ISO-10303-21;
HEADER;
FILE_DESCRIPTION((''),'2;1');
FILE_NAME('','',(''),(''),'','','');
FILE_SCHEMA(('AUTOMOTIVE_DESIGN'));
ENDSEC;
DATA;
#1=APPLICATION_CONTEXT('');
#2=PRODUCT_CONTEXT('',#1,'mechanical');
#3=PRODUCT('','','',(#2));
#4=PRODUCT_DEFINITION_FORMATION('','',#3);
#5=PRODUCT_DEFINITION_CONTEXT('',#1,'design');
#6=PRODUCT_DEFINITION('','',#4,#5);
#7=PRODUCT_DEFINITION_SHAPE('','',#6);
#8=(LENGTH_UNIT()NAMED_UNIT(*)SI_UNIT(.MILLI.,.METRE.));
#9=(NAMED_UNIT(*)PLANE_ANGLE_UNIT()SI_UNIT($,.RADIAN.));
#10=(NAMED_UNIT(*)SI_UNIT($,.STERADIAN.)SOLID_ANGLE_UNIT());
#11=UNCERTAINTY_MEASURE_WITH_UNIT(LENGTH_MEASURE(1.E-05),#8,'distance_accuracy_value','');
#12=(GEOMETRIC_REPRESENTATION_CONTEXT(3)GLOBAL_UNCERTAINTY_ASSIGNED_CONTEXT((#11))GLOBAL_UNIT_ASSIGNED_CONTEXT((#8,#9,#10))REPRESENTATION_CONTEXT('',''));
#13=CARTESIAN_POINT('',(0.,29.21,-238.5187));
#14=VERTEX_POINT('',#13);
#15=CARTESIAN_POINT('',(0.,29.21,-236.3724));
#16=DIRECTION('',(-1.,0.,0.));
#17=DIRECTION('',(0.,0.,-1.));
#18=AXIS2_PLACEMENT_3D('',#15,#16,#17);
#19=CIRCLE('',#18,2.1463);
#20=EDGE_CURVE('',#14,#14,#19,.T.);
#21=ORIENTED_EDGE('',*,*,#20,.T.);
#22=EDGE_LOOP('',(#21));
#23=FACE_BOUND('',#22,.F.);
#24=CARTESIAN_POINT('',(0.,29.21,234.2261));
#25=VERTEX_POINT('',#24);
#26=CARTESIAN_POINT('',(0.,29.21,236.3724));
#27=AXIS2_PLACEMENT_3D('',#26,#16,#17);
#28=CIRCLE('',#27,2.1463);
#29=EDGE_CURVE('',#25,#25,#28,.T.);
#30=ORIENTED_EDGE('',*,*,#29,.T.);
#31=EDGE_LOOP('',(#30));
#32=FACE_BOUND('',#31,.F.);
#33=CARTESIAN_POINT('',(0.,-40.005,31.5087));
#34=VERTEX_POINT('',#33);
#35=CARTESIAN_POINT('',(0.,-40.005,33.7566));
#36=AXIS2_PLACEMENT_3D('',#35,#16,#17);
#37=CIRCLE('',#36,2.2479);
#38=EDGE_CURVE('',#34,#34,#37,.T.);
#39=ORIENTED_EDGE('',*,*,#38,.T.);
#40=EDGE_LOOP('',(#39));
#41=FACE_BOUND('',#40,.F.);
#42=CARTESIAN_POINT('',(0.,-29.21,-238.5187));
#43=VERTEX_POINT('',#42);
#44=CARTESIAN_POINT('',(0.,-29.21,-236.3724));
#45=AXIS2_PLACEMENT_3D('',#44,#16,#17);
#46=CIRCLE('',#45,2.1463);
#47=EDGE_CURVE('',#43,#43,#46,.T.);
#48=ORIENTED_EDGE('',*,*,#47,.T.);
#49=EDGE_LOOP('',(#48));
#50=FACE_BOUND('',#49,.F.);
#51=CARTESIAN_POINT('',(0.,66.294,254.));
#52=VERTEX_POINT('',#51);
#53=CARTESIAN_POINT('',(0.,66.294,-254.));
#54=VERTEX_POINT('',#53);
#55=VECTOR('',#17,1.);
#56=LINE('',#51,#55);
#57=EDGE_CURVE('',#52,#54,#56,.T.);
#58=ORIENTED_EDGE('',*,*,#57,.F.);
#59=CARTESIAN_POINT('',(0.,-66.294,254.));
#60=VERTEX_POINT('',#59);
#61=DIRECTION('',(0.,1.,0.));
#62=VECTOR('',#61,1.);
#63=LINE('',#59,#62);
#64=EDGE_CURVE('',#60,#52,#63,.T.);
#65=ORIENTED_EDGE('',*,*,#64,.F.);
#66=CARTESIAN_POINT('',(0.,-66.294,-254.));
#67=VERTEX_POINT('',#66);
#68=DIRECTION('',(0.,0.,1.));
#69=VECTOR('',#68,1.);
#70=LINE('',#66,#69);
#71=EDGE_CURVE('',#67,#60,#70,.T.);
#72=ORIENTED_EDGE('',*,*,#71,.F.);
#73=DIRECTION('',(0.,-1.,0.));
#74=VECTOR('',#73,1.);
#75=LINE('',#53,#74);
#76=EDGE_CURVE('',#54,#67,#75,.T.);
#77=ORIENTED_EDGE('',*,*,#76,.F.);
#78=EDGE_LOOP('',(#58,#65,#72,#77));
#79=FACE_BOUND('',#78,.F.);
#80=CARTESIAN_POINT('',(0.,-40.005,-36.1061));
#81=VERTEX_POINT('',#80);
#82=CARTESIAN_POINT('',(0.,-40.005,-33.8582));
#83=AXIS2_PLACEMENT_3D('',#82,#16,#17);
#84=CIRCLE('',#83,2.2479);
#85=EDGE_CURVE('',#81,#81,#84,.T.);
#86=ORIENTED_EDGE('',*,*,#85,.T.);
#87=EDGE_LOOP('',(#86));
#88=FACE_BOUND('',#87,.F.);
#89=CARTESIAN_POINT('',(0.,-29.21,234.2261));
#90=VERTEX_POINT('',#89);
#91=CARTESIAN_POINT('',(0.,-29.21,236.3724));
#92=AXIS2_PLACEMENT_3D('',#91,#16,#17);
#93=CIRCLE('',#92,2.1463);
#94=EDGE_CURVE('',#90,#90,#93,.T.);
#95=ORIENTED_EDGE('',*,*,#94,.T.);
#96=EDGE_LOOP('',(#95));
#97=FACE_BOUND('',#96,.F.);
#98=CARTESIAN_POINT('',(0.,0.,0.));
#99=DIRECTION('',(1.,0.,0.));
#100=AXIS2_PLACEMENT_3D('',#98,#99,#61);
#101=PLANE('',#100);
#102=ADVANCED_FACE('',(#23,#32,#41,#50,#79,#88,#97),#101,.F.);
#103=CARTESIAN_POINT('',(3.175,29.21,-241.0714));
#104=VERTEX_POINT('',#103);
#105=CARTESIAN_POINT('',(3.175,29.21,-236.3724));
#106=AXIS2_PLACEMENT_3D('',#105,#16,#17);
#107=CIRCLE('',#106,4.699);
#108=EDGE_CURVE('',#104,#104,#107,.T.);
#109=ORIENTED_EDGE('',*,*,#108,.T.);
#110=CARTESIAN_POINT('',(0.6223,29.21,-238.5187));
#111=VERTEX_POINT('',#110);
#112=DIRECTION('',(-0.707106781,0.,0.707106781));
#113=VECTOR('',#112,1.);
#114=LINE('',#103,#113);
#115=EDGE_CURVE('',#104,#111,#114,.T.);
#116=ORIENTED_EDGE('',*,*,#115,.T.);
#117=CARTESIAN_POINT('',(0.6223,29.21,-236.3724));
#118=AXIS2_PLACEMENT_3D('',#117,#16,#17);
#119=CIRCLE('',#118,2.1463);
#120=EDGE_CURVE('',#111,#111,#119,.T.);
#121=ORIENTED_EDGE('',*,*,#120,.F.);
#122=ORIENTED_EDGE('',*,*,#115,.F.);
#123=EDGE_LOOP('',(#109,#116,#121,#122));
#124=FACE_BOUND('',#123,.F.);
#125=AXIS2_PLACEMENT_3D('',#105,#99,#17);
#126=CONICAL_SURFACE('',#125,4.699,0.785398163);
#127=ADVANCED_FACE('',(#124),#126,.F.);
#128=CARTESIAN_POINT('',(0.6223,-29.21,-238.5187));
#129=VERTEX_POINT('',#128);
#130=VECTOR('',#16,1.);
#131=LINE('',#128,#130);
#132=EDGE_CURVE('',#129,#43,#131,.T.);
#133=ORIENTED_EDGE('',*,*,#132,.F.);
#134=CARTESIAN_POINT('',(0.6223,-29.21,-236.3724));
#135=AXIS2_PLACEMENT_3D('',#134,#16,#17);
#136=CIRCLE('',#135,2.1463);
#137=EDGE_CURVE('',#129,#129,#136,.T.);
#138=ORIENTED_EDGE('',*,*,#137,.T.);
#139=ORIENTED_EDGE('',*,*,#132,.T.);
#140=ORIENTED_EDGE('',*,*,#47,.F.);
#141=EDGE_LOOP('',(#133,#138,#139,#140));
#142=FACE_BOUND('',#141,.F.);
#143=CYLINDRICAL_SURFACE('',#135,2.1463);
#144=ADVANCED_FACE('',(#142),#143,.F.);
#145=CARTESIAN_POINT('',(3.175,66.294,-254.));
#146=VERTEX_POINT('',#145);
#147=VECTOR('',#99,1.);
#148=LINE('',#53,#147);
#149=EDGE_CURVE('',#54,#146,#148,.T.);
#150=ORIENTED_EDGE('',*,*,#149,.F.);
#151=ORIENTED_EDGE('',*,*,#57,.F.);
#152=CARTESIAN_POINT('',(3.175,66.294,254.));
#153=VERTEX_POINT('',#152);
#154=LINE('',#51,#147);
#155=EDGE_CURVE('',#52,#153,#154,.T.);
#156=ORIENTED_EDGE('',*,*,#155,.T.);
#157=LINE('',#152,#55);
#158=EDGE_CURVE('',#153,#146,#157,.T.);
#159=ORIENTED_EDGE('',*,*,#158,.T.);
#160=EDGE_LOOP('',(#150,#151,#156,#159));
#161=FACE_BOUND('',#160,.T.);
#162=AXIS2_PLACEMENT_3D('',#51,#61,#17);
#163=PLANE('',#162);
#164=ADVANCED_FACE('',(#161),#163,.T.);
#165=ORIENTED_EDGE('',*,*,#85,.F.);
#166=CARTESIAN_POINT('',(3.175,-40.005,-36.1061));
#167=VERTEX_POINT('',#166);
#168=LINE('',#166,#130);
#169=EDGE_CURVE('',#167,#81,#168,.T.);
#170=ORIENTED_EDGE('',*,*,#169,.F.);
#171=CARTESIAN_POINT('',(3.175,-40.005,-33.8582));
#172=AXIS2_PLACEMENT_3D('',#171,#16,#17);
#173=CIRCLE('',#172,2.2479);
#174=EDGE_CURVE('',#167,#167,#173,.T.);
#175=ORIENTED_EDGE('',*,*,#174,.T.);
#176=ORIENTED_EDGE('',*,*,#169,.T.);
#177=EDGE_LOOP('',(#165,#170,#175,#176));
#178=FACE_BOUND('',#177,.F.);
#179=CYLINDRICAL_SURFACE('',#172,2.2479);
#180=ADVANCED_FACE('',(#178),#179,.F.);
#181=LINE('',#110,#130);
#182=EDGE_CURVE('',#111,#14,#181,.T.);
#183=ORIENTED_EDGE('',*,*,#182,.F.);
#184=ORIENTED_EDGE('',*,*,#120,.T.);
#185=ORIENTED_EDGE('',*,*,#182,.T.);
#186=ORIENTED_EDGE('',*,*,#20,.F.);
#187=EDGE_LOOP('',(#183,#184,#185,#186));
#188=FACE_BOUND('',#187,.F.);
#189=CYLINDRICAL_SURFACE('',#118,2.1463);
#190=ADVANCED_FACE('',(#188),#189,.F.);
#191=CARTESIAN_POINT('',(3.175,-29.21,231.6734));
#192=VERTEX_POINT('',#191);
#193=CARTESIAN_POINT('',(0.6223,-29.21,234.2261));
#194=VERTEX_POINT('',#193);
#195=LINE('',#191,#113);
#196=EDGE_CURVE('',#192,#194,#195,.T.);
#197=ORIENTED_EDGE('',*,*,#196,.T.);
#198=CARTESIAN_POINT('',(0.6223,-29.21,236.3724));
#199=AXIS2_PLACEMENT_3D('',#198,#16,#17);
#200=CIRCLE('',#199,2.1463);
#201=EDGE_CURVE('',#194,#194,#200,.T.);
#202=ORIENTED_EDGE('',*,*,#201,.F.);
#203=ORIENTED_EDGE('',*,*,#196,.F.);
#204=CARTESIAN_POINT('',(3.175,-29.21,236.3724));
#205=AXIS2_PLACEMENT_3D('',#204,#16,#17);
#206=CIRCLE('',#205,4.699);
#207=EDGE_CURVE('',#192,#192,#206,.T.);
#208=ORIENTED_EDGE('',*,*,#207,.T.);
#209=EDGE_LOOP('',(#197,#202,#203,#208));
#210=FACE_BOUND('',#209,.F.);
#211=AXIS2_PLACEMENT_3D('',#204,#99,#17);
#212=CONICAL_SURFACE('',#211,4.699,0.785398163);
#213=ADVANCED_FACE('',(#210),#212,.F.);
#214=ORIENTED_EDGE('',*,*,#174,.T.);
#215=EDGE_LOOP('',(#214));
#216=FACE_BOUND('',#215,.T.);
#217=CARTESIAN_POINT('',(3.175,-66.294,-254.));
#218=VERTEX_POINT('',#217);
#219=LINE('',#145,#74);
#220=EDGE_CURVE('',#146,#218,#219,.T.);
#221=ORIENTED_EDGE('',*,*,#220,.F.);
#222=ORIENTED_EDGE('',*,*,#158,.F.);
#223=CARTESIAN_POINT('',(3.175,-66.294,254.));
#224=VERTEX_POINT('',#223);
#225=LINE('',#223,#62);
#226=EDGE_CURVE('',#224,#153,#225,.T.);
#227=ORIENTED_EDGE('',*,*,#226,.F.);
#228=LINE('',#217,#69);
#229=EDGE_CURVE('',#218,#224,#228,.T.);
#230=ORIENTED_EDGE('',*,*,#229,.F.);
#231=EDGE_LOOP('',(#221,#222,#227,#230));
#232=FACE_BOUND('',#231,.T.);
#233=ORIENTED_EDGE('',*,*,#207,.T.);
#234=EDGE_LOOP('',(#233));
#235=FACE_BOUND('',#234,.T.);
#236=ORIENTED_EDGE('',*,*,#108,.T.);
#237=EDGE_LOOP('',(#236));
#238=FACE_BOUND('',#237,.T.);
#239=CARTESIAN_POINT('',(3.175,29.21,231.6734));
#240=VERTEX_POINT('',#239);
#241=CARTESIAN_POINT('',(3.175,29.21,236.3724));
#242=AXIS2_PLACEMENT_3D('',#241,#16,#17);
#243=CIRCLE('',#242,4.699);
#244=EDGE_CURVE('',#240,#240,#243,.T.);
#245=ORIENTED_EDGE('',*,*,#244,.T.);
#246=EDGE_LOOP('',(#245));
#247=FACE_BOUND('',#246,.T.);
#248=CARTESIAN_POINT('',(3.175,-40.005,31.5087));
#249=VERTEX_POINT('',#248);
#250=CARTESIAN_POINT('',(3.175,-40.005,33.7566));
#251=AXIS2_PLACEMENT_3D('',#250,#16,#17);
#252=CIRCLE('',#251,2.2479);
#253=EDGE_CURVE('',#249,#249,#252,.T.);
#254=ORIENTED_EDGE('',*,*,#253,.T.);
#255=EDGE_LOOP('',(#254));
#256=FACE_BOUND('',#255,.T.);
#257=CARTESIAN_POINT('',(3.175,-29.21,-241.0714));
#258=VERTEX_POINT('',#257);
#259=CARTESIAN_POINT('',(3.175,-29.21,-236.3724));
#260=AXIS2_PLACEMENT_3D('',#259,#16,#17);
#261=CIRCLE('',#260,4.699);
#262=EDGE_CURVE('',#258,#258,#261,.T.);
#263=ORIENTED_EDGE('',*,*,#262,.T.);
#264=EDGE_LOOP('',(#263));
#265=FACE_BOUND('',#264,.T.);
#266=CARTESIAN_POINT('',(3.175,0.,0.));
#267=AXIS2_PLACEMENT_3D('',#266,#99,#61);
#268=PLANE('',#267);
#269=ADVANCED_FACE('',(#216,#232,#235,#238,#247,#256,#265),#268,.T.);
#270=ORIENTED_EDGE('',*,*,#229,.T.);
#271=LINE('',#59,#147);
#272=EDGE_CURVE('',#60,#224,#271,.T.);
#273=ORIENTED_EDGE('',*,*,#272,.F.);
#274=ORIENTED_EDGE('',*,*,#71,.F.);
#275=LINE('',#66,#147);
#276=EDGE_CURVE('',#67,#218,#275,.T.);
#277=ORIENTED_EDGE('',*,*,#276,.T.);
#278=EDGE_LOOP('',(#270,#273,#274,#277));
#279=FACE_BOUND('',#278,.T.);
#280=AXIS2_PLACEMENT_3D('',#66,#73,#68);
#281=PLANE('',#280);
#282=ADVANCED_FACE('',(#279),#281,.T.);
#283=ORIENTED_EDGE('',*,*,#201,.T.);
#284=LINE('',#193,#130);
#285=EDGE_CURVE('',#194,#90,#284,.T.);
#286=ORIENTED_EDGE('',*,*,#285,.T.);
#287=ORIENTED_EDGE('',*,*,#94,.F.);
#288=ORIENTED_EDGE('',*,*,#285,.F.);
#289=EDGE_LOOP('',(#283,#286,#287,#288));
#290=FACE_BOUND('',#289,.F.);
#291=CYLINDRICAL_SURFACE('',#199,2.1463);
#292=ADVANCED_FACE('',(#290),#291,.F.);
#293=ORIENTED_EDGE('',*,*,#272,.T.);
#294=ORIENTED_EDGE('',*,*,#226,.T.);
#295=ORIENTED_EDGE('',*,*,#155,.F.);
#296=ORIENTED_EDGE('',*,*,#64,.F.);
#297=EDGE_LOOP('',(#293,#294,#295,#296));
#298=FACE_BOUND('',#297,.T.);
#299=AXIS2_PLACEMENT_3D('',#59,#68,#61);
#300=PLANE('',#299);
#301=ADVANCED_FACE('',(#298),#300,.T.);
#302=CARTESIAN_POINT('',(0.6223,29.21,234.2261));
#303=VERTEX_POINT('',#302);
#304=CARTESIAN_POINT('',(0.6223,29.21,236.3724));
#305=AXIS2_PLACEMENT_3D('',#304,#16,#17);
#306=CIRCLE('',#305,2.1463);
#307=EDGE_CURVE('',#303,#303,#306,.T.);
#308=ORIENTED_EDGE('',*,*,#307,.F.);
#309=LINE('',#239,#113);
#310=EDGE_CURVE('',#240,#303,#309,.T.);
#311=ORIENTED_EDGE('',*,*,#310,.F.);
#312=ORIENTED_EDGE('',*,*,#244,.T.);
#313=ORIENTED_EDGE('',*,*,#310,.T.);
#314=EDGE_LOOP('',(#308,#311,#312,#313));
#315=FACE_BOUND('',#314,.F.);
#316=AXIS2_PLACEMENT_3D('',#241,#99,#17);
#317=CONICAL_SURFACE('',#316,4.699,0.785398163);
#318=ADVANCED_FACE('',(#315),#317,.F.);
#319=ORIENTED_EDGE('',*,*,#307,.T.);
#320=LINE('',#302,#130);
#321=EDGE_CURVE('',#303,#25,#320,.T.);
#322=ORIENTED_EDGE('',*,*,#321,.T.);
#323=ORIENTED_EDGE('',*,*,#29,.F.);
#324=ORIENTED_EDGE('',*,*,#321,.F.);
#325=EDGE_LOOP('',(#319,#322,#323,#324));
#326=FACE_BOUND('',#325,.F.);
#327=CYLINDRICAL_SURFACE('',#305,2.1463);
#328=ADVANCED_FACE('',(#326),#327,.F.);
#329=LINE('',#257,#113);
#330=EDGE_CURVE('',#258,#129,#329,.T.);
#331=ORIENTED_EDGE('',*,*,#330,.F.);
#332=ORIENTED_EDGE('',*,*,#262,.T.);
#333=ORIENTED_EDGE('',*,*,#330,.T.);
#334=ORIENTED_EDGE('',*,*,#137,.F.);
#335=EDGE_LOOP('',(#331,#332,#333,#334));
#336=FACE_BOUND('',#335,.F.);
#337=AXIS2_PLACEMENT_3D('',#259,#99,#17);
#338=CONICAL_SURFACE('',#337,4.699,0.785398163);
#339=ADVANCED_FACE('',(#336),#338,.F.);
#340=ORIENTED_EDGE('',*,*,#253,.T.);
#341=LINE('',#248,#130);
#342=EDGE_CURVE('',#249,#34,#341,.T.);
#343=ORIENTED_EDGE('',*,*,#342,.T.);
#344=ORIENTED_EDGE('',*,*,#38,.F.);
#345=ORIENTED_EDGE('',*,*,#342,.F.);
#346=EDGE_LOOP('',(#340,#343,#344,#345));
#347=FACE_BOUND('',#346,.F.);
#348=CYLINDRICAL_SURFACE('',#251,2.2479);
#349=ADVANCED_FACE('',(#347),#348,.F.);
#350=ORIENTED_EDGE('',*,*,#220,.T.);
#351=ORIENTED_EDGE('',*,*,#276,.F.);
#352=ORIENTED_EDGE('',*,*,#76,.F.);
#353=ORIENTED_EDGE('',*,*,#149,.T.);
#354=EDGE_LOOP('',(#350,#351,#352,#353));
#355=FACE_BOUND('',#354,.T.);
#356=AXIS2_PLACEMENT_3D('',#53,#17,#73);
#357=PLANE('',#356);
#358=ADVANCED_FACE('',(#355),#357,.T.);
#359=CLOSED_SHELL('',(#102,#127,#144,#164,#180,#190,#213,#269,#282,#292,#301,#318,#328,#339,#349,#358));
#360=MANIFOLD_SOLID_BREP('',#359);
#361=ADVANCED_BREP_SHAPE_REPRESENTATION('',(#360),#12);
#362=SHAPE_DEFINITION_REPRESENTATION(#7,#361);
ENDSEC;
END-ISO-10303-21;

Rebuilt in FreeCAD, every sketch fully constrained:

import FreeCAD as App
import Part
import Sketcher

V = App.Vector
Q = App.Units.Quantity


def add_polygon(sketch, points):
    """Adds a closed chain of lines whose ends are joined by coincident constraints."""
    first, n = sketch.GeometryCount, len(points)
    for a, b in zip(points, points[1:] + points[:1]):
        sketch.addGeometry(Part.LineSegment(App.Vector(*a, 0), App.Vector(*b, 0)), False)
    for i in range(n):
        sketch.addConstraint(Sketcher.Constraint("Coincident", first + i, 2, first + (i + 1) % n, 1))

doc = App.newDocument("Part")
body = doc.addObject("PartDesign::Body", "Body")

# Sketch on YZ plane
sketch1 = doc.addObject("Sketcher::SketchObject", "Sketch")
body.addObject(sketch1)
sketch1.AttachmentSupport = (doc.YZ_Plane, [""])
sketch1.MapMode = "FlatFace"
add_polygon(sketch1, [(66, 254), (-66, 254), (-66, -254), (66, -254)])  # lines 0-3
sketch1.addConstraint([
    Sketcher.Constraint("Horizontal", 0),
    Sketcher.Constraint("Vertical", 1),
    Sketcher.Constraint("Horizontal", 2),
    Sketcher.Constraint("Vertical", 3),
    Sketcher.Constraint("Symmetric", 0, 2, 2, 2, -1, 1),
    Sketcher.Constraint("DistanceY", 1, 2, 1, 1, Q("20 in")),
    Sketcher.Constraint("DistanceX", 0, 2, 0, 1, Q("5.22 in")),
])
pad1 = doc.addObject("PartDesign::Pad", "Pad")
body.addObject(pad1)
pad1.Profile = sketch1
pad1.Length = Q("0.125 in")

# Sketch on YZ plane
sketch2 = doc.addObject("Sketcher::SketchObject", "Sketch001")
body.addObject(sketch2)
sketch2.AttachmentSupport = (doc.YZ_Plane, [""])
sketch2.MapMode = "FlatFace"
sketch2.AttachmentOffset = App.Placement(V(0, 0, 0.125 * 25.4), App.Rotation())
sketch2.addGeometry([
    Part.Circle(V(-40, 33.8, 0), V(0, 0, 1), 2.2),
    Part.Circle(V(-40, -33.9, 0), V(0, 0, 1), 2.2),
], False)
sketch2.addConstraint([
    Sketcher.Constraint("Equal", 0, 1),
    Sketcher.Constraint("Vertical", 0, 3, 1, 3),
    Sketcher.Constraint("Diameter", 0, Q("0.177 in")),
    Sketcher.Constraint("DistanceX", 0, 3, -1, 1, Q("1.575 in")),
    Sketcher.Constraint("DistanceY", -1, 1, 0, 3, Q("1.329 in")),
    Sketcher.Constraint("DistanceY", 1, 3, -1, 1, Q("1.333 in")),
])
doc.recompute()
hole = doc.addObject("PartDesign::Hole", "Hole")
body.addObject(hole)
hole.Profile = sketch2
hole.ThreadType = "None"
hole.Diameter = Q("0.177 in")
hole.DepthType = "ThroughAll"

# Sketch on YZ plane
sketch3 = doc.addObject("Sketcher::SketchObject", "Sketch002")
body.addObject(sketch3)
sketch3.AttachmentSupport = (doc.YZ_Plane, [""])
sketch3.MapMode = "FlatFace"
sketch3.AttachmentOffset = App.Placement(V(0, 0, 0.125 * 25.4), App.Rotation())
sketch3.addGeometry([
    Part.Circle(V(29.2, 236.4, 0), V(0, 0, 1), 2.1),
    Part.Circle(V(-29.2, 236.4, 0), V(0, 0, 1), 2.1),
    Part.Circle(V(29.2, -236.4, 0), V(0, 0, 1), 2.1),
    Part.Circle(V(-29.2, -236.4, 0), V(0, 0, 1), 2.1),
], False)
sketch3.addConstraint([
    Sketcher.Constraint("Equal", 0, 1),
    Sketcher.Constraint("Equal", 1, 2),
    Sketcher.Constraint("Equal", 2, 3),
    Sketcher.Constraint("Symmetric", 1, 3, 2, 3, -1, 1),
    Sketcher.Constraint("Symmetric", 0, 3, 3, 3, -1, 1),
    Sketcher.Constraint("Symmetric", 0, 3, 1, 3, -2),
    Sketcher.Constraint("Diameter", 0, Q("0.169 in")),
    Sketcher.Constraint("DistanceX", 1, 3, 0, 3, Q("2.3 in")),
    Sketcher.Constraint("DistanceY", -1, 1, 0, 3, Q("9.306 in")),
])
doc.recompute()
hole2 = doc.addObject("PartDesign::Hole", "Hole001")
body.addObject(hole2)
hole2.Profile = sketch3
hole2.ThreadType = "None"
hole2.Diameter = Q("0.169 in")
hole2.DepthType = "ThroughAll"
hole2.HoleCutType = "Countersink"
hole2.HoleCutDiameter = Q("0.37 in")
hole2.HoleCutCountersinkAngle = 90

doc.recompute()
